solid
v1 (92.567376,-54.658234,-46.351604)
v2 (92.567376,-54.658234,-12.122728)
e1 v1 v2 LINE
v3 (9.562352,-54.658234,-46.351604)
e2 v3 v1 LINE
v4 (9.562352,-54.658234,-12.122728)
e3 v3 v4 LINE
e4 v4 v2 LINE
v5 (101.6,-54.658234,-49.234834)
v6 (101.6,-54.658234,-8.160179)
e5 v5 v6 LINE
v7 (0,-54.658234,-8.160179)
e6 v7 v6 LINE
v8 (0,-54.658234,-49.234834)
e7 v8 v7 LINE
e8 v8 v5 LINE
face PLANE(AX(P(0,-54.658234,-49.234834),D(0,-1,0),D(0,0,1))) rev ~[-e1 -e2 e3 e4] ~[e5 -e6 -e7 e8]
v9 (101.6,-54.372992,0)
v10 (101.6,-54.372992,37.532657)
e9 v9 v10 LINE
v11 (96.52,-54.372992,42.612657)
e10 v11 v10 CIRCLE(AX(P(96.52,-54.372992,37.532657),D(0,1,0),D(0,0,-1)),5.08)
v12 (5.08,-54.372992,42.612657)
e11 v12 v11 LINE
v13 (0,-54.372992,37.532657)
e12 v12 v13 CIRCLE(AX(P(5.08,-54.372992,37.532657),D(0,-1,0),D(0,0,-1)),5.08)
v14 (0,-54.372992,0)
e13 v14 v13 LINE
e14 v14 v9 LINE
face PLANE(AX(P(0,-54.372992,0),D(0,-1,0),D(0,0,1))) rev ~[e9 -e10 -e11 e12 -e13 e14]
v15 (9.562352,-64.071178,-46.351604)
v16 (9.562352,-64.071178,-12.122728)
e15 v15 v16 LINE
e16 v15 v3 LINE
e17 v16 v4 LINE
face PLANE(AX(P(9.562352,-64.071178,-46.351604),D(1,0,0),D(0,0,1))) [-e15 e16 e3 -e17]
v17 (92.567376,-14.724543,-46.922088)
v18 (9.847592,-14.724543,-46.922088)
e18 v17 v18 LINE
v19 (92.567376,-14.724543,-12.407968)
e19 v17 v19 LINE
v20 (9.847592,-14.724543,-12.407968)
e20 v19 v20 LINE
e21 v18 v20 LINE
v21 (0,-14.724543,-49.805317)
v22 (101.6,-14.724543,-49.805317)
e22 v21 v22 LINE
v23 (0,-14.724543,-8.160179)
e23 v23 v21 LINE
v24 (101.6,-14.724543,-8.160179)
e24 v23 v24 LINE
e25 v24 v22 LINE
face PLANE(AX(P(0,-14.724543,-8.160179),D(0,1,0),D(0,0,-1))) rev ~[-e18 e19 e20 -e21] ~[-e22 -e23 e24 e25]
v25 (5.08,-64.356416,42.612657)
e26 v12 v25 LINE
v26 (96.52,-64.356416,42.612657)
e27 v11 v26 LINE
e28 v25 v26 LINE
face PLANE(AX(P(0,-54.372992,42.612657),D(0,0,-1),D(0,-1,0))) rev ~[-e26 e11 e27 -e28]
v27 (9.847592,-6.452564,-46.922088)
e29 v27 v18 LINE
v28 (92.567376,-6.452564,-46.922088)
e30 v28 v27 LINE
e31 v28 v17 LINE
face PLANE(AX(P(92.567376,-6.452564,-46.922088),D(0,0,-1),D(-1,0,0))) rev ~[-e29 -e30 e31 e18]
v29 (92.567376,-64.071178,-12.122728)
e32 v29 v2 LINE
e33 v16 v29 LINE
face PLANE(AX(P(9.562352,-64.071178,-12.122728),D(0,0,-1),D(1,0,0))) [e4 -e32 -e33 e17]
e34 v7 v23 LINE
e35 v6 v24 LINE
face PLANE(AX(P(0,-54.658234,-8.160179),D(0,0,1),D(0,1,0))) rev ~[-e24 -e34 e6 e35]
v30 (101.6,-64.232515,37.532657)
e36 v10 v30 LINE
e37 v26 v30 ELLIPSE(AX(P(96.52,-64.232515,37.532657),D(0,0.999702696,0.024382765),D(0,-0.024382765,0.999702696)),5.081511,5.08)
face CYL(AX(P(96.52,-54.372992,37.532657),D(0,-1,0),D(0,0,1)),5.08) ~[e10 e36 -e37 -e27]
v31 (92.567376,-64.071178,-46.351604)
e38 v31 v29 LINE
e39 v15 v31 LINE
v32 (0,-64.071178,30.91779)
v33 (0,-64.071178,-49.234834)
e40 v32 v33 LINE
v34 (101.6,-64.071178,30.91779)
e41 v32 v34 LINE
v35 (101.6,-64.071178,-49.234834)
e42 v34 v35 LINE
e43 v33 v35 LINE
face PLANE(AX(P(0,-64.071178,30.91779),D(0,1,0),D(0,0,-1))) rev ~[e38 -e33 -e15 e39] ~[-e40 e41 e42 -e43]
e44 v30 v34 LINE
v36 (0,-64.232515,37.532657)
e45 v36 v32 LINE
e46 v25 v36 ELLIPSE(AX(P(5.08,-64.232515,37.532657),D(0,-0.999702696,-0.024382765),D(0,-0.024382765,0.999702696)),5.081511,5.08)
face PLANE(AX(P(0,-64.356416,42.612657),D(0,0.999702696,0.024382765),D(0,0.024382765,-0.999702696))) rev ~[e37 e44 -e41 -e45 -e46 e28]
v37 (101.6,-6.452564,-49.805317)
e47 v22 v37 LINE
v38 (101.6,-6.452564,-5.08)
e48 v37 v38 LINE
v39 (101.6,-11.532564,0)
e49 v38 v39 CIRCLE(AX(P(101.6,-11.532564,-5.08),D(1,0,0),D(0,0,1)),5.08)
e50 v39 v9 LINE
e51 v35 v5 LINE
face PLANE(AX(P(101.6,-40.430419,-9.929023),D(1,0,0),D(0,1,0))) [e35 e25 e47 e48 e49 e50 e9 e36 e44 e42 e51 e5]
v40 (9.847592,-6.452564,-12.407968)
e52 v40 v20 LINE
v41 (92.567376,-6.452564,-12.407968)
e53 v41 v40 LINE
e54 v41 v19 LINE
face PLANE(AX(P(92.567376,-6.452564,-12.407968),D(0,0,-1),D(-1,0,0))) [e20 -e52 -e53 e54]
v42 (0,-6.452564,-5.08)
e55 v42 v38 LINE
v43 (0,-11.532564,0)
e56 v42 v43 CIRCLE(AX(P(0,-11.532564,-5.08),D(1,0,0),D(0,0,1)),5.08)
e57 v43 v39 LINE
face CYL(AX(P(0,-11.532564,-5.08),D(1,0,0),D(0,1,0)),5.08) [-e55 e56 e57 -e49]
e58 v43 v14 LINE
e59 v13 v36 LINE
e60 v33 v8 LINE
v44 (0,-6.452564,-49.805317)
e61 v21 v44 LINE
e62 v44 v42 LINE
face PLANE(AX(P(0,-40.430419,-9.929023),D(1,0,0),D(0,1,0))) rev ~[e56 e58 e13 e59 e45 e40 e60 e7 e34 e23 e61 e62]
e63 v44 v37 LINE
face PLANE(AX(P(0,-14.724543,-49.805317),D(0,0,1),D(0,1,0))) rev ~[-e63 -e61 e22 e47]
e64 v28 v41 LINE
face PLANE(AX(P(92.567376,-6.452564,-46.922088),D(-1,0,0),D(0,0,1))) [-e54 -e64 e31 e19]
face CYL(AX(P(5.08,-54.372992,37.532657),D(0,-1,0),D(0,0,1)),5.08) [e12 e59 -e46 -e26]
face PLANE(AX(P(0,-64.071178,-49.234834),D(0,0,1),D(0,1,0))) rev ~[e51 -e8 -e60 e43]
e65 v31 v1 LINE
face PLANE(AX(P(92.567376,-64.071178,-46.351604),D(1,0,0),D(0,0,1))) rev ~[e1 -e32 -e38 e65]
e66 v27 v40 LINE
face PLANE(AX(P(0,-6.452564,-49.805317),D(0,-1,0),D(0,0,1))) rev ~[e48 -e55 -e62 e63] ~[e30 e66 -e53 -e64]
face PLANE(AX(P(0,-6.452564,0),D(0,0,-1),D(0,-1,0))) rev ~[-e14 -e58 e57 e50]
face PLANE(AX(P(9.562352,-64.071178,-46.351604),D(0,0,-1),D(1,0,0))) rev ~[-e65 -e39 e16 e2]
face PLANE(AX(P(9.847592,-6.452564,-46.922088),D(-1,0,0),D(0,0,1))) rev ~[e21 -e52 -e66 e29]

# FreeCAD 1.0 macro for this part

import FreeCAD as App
import Part
import Sketcher
Q = App.Units.Quantity


def edges_at(feature, points):
    """Names of the edges that pass closest to the given points."""
    edges = feature.Shape.Edges
    near = lambda p: min(range(len(edges)), key=lambda i: edges[i].distToShape(Part.Vertex(*p))[0])
    return sorted({f"Edge{near(p) + 1}" for p in points})


def add_polygon(sketch, points):
    """Adds a closed chain of lines whose ends are joined by coincident constraints."""
    first, n = sketch.GeometryCount, len(points)
    for a, b in zip(points, points[1:] + points[:1]):
        sketch.addGeometry(Part.LineSegment(App.Vector(*a, 0), App.Vector(*b, 0)), False)
    for i in range(n):
        sketch.addConstraint(Sketcher.Constraint("Coincident", first + i, 2, first + (i + 1) % n, 1))

doc = App.newDocument("Part")
body = doc.addObject("PartDesign::Body", "Body")

sketch1 = doc.addObject("Sketcher::SketchObject", "Sketch")
body.addObject(sketch1)
sketch1.AttachmentSupport = (doc.YZ_Plane, [""])
sketch1.MapMode = "FlatFace"
add_polygon(sketch1, [(-64, 43), (-64, 31), (-64, -49), (-55, -49), (-55, -8), (-15, -8), (-15, -50), (-6, -50), (-6, 0), (-54, 0), (-54, 43)])
sketch1.addConstraint([
    Sketcher.Constraint("Vertical", 1),
    Sketcher.Constraint("Horizontal", 2),
    Sketcher.Constraint("Vertical", 3),
    Sketcher.Constraint("Horizontal", 4),
    Sketcher.Constraint("Vertical", 5),
    Sketcher.Constraint("Horizontal", 6),
    Sketcher.Constraint("Vertical", 7),
    Sketcher.Constraint("Horizontal", 8),
    Sketcher.Constraint("Vertical", 9),
    Sketcher.Constraint("Horizontal", 10),
    Sketcher.Constraint("PointOnObject", 7, 2, -1),
    Sketcher.Constraint("DistanceX", 4, 1, 4, 2, 39.933691),
    Sketcher.Constraint("DistanceX", 6, 1, 6, 2, 8.271979),
    Sketcher.Constraint("DistanceY", 5, 2, 5, 1, 41.645138),
    Sketcher.Constraint("DistanceX", 2, 1, 2, 2, 9.412944),
    Sketcher.Constraint("DistanceX", 8, 2, 8, 1, 47.920428),
    Sketcher.Constraint("DistanceX", 10, 2, 10, 1, 9.983424),
    Sketcher.Constraint("DistanceY", 1, 2, 1, 1, 80.152624),
    Sketcher.Constraint("DistanceY", 3, 1, 3, 2, 41.074655),
    Sketcher.Constraint("DistanceY", 7, 1, 7, 2, 49.805317),
    Sketcher.Constraint("DistanceY", 9, 1, 9, 2, 42.612657),
    Sketcher.Constraint("DistanceX", 0, 2, -1, 1, 64.071178),
])
pad1 = doc.addObject("PartDesign::Pad", "Pad")
body.addObject(pad1)
pad1.Profile = sketch1
pad1.Length = Q("4 in")
doc.recompute()

fillet = doc.addObject("PartDesign::Fillet", "Fillet")
body.addObject(fillet)
fillet.Base = (pad1, edges_at(pad1, [(101.6, -59.365, 42.613), (0, -59.365, 42.613), (50.8, -6.453, 0)]))
fillet.Radius = Q("0.2 in")

sketch2 = doc.addObject("Sketcher::SketchObject", "Sketch001")
body.addObject(sketch2)
sketch2.AttachmentSupport = (doc.XZ_Plane, [""])
sketch2.MapMode = "FlatFace"
sketch2.AttachmentOffset = App.Placement(App.Vector(0, 0, 64.071178), App.Rotation())
add_polygon(sketch2, [(10, -12), (10, -46), (93, -46), (93, -12)])
sketch2.addConstraint([
    Sketcher.Constraint("Vertical", 0),
    Sketcher.Constraint("Horizontal", 1),
    Sketcher.Constraint("Vertical", 2),
    Sketcher.Constraint("Horizontal", 3),
    Sketcher.Constraint("DistanceX", 1, 1, 1, 2, 83.005025),
    Sketcher.Constraint("DistanceY", 0, 2, 0, 1, 34.228876),
    Sketcher.Constraint("DistanceX", -1, 1, 0, 2, 9.562352),
    Sketcher.Constraint("DistanceY", 0, 2, -1, 1, 46.351604),
])
pocket1 = doc.addObject("PartDesign::Pocket", "Pocket")
body.addObject(pocket1)
pocket1.Profile = sketch2
pocket1.Length = Q("1 in")

sketch3 = doc.addObject("Sketcher::SketchObject", "Sketch002")
body.addObject(sketch3)
sketch3.AttachmentSupport = (doc.XZ_Plane, [""])
sketch3.MapMode = "FlatFace"
sketch3.AttachmentOffset = App.Placement(App.Vector(0, 0, 6.452564), App.Rotation())
add_polygon(sketch3, [(93, -12), (93, -47), (10, -47), (10, -12)])
sketch3.addConstraint([
    Sketcher.Constraint("Vertical", 0),
    Sketcher.Constraint("Horizontal", 1),
    Sketcher.Constraint("Vertical", 2),
    Sketcher.Constraint("Horizontal", 3),
    Sketcher.Constraint("DistanceY", 0, 2, 0, 1, 34.51412),
    Sketcher.Constraint("DistanceX", 1, 2, 1, 1, 82.719785),
    Sketcher.Constraint("DistanceY", 0, 2, -1, 1, 46.922088),
    Sketcher.Constraint("DistanceX", -1, 1, 1, 2, 9.847592),
])
pocket2 = doc.addObject("PartDesign::Pocket", "Pocket001")
body.addObject(pocket2)
pocket2.Profile = sketch3
pocket2.Length = Q("1 in")
pocket2.Reversed = True

doc.recompute()
